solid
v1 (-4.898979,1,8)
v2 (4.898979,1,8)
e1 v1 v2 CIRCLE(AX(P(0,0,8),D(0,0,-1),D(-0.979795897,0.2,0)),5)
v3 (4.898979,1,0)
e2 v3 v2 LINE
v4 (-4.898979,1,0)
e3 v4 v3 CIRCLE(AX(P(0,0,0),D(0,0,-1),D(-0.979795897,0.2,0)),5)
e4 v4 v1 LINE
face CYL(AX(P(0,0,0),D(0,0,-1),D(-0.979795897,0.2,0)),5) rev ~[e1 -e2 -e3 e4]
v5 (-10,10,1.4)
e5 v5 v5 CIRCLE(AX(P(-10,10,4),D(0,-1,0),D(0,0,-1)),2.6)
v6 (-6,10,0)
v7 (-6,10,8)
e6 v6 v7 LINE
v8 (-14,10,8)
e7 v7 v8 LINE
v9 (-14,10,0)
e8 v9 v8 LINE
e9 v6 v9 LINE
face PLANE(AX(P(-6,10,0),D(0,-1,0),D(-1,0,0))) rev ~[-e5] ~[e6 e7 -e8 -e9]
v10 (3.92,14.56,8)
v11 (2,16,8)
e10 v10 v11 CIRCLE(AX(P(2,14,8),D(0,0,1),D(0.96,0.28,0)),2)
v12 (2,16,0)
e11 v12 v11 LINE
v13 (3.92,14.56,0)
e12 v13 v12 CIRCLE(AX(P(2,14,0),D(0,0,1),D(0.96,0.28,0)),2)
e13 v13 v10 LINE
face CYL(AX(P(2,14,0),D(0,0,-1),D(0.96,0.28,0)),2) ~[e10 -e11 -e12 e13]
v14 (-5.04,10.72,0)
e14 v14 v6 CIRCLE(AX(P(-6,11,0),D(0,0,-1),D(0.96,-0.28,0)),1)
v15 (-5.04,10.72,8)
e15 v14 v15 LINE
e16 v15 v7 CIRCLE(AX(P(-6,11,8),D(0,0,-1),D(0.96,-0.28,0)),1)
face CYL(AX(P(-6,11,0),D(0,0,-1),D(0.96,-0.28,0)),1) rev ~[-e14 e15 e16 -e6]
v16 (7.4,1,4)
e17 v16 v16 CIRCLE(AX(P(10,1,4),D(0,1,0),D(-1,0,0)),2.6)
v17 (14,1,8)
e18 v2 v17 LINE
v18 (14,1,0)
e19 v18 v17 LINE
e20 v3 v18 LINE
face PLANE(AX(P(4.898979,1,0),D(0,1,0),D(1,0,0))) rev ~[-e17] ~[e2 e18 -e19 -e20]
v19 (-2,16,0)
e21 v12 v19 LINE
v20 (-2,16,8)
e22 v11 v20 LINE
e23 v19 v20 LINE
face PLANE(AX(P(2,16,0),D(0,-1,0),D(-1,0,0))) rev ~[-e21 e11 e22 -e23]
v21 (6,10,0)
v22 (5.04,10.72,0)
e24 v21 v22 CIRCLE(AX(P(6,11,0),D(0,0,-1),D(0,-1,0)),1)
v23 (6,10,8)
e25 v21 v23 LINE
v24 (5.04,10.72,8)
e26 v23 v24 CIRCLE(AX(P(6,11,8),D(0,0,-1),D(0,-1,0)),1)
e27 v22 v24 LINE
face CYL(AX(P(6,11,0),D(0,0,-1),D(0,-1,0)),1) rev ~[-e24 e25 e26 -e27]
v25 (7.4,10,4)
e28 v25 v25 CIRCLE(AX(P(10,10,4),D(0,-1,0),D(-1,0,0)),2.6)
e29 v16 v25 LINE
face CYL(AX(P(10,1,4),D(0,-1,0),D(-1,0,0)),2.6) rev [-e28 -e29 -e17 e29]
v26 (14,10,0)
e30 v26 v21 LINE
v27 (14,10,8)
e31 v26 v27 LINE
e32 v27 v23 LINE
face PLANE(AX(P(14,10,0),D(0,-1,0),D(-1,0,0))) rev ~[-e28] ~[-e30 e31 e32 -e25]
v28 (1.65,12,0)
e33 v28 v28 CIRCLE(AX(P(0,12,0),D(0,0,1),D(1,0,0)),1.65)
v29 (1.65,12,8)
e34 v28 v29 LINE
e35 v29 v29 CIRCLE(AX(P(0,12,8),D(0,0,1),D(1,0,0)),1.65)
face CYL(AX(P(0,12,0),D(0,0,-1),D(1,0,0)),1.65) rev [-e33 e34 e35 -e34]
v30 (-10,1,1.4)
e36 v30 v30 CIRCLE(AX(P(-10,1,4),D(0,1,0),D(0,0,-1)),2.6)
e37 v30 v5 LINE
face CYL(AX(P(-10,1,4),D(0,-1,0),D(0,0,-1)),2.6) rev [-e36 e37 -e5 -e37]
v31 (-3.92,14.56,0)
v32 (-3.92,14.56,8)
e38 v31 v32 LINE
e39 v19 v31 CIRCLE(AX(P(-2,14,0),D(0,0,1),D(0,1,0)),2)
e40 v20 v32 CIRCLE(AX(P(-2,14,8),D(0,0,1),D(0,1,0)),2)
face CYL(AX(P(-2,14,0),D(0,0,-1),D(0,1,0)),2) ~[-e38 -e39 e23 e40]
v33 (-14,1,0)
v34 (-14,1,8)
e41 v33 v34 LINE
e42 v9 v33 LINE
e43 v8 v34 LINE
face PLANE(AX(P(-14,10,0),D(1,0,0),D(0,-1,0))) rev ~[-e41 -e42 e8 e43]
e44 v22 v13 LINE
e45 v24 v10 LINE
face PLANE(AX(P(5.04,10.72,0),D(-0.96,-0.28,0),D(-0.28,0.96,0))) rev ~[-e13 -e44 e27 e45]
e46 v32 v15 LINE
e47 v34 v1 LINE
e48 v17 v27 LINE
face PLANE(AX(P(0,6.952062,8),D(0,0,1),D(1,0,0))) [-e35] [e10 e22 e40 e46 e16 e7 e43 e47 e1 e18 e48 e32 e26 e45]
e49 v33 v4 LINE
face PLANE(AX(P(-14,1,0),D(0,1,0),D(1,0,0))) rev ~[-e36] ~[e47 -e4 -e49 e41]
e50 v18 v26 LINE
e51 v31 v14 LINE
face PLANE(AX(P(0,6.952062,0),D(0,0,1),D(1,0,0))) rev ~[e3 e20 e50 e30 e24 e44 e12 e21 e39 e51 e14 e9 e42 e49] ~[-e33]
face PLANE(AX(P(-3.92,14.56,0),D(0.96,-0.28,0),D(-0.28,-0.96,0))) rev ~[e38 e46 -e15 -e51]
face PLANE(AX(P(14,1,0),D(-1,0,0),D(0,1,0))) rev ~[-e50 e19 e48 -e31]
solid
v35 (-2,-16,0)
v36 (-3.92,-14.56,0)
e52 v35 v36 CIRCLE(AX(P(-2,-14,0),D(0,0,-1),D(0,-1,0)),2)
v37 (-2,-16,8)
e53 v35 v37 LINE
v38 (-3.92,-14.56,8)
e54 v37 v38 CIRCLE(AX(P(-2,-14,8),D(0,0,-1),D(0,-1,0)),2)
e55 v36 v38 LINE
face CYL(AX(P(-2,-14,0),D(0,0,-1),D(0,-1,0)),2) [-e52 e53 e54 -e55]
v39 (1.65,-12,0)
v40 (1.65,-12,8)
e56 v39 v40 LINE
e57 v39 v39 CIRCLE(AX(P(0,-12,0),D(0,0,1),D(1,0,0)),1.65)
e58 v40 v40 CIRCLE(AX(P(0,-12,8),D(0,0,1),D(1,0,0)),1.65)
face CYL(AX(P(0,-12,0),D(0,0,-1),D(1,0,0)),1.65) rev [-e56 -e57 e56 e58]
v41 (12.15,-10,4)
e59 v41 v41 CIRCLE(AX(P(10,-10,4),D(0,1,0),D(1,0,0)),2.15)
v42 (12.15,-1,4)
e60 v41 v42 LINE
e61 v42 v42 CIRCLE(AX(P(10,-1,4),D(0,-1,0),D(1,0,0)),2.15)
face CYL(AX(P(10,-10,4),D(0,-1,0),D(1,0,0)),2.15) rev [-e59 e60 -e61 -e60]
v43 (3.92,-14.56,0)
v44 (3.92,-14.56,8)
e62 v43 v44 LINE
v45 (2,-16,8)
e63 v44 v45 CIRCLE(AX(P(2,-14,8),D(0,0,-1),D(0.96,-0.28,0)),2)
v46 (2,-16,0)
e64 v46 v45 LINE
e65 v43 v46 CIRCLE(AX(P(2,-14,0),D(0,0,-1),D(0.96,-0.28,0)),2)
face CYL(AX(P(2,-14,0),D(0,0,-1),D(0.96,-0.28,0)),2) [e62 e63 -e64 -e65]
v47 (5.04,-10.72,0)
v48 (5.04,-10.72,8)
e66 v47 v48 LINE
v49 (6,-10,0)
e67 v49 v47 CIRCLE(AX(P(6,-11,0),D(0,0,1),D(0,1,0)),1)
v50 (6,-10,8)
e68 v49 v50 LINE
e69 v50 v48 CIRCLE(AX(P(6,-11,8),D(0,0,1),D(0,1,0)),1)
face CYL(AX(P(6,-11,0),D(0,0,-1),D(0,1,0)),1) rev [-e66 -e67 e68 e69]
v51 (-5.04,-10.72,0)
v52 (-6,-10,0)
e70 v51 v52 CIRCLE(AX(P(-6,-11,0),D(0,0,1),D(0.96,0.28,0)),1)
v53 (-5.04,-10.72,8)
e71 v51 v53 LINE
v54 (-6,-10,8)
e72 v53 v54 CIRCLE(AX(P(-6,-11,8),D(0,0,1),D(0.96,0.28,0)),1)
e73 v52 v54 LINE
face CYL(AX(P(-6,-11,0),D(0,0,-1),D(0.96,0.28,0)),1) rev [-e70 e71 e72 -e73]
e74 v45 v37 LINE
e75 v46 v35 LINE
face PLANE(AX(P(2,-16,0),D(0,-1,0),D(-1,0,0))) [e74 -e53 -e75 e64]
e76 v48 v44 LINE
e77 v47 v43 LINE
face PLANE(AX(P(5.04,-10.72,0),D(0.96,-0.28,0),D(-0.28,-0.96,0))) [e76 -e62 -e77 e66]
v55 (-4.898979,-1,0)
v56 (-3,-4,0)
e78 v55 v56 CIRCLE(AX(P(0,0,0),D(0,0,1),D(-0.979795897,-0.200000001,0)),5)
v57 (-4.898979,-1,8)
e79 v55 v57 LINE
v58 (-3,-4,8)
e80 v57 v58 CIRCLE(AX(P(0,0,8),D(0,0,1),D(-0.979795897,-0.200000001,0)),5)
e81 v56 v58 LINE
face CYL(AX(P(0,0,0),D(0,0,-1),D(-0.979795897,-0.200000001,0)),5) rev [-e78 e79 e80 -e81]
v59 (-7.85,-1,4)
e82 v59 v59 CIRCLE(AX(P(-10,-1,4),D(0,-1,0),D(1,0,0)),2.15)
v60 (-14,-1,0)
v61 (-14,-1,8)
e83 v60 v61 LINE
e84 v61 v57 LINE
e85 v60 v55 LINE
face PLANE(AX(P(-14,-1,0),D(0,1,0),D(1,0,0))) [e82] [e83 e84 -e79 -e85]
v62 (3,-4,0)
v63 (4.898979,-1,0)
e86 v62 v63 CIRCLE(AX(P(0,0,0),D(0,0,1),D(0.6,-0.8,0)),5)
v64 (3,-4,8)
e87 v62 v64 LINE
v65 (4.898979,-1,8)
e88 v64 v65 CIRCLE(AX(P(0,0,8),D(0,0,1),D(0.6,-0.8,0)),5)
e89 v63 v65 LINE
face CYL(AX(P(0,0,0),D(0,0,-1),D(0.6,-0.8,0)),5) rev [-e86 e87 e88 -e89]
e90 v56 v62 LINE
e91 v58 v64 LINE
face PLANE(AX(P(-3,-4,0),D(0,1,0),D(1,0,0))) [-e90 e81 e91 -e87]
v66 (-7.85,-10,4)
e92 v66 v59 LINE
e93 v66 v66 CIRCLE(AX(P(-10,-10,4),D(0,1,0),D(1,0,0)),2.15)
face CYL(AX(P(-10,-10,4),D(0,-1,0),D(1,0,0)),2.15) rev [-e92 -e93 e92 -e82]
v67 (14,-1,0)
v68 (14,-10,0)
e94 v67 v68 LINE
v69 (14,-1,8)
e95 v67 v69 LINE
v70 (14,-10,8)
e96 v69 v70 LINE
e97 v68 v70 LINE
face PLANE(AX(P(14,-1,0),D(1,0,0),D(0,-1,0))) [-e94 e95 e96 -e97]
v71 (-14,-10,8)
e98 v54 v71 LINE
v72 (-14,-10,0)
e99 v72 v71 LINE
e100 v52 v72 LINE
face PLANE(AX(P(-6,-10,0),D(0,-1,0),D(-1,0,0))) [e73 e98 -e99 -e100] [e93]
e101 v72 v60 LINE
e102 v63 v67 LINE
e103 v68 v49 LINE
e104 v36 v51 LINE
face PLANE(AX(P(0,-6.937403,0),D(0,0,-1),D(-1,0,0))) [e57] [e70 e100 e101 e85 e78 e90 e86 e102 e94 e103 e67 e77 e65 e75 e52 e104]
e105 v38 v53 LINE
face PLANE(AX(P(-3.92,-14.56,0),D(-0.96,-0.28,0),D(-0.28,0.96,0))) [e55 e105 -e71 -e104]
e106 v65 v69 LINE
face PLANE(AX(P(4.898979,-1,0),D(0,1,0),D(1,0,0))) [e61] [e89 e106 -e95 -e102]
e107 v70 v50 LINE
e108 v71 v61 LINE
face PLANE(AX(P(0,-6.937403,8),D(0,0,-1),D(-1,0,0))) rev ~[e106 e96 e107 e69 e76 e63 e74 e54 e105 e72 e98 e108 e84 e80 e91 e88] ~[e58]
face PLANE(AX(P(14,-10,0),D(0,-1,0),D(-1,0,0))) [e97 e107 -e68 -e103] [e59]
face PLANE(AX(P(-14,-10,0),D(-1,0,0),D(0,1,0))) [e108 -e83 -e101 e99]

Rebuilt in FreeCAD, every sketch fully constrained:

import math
import FreeCAD as App
import Part
import Sketcher

doc = App.newDocument("Part")
body = doc.addObject("PartDesign::Body", "Body")

sketch1 = doc.addObject("Sketcher::SketchObject", "Sketch")
body.addObject(sketch1)
sketch1.AttachmentSupport = (doc.XY_Plane, [""])
sketch1.MapMode = "FlatFace"
sketch1.addGeometry([
    Part.LineSegment(App.Vector(3, -4, 0), App.Vector(-3, -4, 0)),
    Part.ArcOfCircle(Part.Circle(App.Vector(0, 0, 0), App.Vector(0, 0, 1), 5), math.radians(-168), math.radians(-127)),
    Part.LineSegment(App.Vector(-4.9, -1, 0), App.Vector(-14, -1, 0)),
    Part.LineSegment(App.Vector(-14, -1, 0), App.Vector(-14, -10, 0)),
    Part.LineSegment(App.Vector(-14, -10, 0), App.Vector(-6, -10, 0)),
    Part.ArcOfCircle(Part.Circle(App.Vector(-6, -11, 0), App.Vector(0, 0, 1), 1), math.radians(16), math.radians(90)),
    Part.LineSegment(App.Vector(-5, -10.7, 0), App.Vector(-3.9, -14.6, 0)),
    Part.ArcOfCircle(Part.Circle(App.Vector(-2, -14, 0), App.Vector(0, 0, 1), 2), math.radians(-164), math.radians(-90)),
    Part.LineSegment(App.Vector(-2, -16, 0), App.Vector(2, -16, 0)),
    Part.ArcOfCircle(Part.Circle(App.Vector(2, -14, 0), App.Vector(0, 0, 1), 2), math.radians(-90), math.radians(-16)),
    Part.LineSegment(App.Vector(3.9, -14.6, 0), App.Vector(5, -10.7, 0)),
    Part.ArcOfCircle(Part.Circle(App.Vector(6, -11, 0), App.Vector(0, 0, 1), 1), math.radians(90), math.radians(164)),
    Part.LineSegment(App.Vector(6, -10, 0), App.Vector(14, -10, 0)),
    Part.LineSegment(App.Vector(14, -10, 0), App.Vector(14, -1, 0)),
    Part.LineSegment(App.Vector(14, -1, 0), App.Vector(4.9, -1, 0)),
    Part.ArcOfCircle(Part.Circle(App.Vector(0, 0, 0), App.Vector(0, 0, 1), 5), math.radians(-53), math.radians(-12)),
    Part.Circle(App.Vector(0, -12, 0), App.Vector(0, 0, 1), 1.6),
], False)
sketch1.addConstraint([
    Sketcher.Constraint("Coincident", 0, 2, 1, 2),
    Sketcher.Constraint("Coincident", 1, 1, 2, 1),
    Sketcher.Constraint("Coincident", 2, 2, 3, 1),
    Sketcher.Constraint("Coincident", 3, 2, 4, 1),
    Sketcher.Constraint("Tangent", 4, 2, 5, 2),
    Sketcher.Constraint("Tangent", 5, 1, 6, 1),
    Sketcher.Constraint("Tangent", 6, 2, 7, 1),
    Sketcher.Constraint("Tangent", 7, 2, 8, 1),
    Sketcher.Constraint("Tangent", 8, 2, 9, 1),
    Sketcher.Constraint("Tangent", 9, 2, 10, 1),
    Sketcher.Constraint("Tangent", 10, 2, 11, 2),
    Sketcher.Constraint("Tangent", 11, 1, 12, 1),
    Sketcher.Constraint("Coincident", 12, 2, 13, 1),
    Sketcher.Constraint("Coincident", 13, 2, 14, 1),
    Sketcher.Constraint("Coincident", 14, 2, 15, 2),
    Sketcher.Constraint("Coincident", 15, 1, 0, 1),
    Sketcher.Constraint("Horizontal", 0),
    Sketcher.Constraint("Horizontal", 2),
    Sketcher.Constraint("Vertical", 3),
    Sketcher.Constraint("Horizontal", 4),
    Sketcher.Constraint("Horizontal", 8),
    Sketcher.Constraint("Horizontal", 12),
    Sketcher.Constraint("Vertical", 13),
    Sketcher.Constraint("Horizontal", 14),
    Sketcher.Constraint("Coincident", 1, 3, -1, 1),
    Sketcher.Constraint("Coincident", 15, 3, -1, 1),
    Sketcher.Constraint("Equal", 7, 9),
    Sketcher.Constraint("Equal", 5, 11),
    Sketcher.Constraint("Equal", 1, 15),
    Sketcher.Constraint("Symmetric", 5, 3, 11, 3, -2),
    Sketcher.Constraint("Symmetric", 2, 2, 13, 2, -2),
    Sketcher.Constraint("PointOnObject", 16, 3, -2),
    Sketcher.Constraint("Horizontal", 6, 2, 9, 2),
    Sketcher.Constraint("Radius", 1, 5.0),
    Sketcher.Constraint("Radius", 5, 1.0),
    Sketcher.Constraint("Radius", 7, 2.0),
    Sketcher.Constraint("Diameter", 16, 3.3),
    Sketcher.Constraint("DistanceX", 0, 2, 0, 1, 6.0),
    Sketcher.Constraint("DistanceX", 4, 1, 4, 2, 8.0),
    Sketcher.Constraint("DistanceX", 8, 1, 8, 2, 4.0),
    Sketcher.Constraint("DistanceY", 3, 2, 3, 1, 9.0),
    Sketcher.Constraint("Distance", 6, 4.0),
    Sketcher.Constraint("DistanceX", 5, 3, -1, 1, 6.0),
    Sketcher.Constraint("DistanceY", 5, 3, -1, 1, 11.0),
    Sketcher.Constraint("DistanceY", 16, 3, -1, 1, 12.0),
])
pad1 = doc.addObject("PartDesign::Pad", "Pad")
body.addObject(pad1)
pad1.Profile = sketch1
pad1.Length = 8

sketch2 = doc.addObject("Sketcher::SketchObject", "Sketch001")
body.addObject(sketch2)
sketch2.AttachmentSupport = (doc.XZ_Plane, [""])
sketch2.MapMode = "FlatFace"
sketch2.AttachmentOffset = App.Placement(App.Vector(0, 0, 10), App.Rotation())
sketch2.addGeometry([
    Part.Circle(App.Vector(10, 4, 0), App.Vector(0, 0, 1), 2.1),
    Part.Circle(App.Vector(-10, 4, 0), App.Vector(0, 0, 1), 2.1),
], False)
sketch2.addConstraint([
    Sketcher.Constraint("Equal", 0, 1),
    Sketcher.Constraint("Symmetric", 0, 3, 1, 3, -2),
    Sketcher.Constraint("Diameter", 0, 4.3),
    Sketcher.Constraint("DistanceX", -1, 1, 0, 3, 10.0),
    Sketcher.Constraint("DistanceY", -1, 1, 0, 3, 4.0),
])
pocket1 = doc.addObject("PartDesign::Pocket", "Pocket")
body.addObject(pocket1)
pocket1.Profile = sketch2
pocket1.Type = "ThroughAll"
body2 = doc.addObject("PartDesign::Body", "Body001")

sketch3 = doc.addObject("Sketcher::SketchObject", "Sketch002")
body2.addObject(sketch3)
sketch3.AttachmentSupport = (doc.getObject("XY_Plane001"), [""])
sketch3.MapMode = "FlatFace"
sketch3.addGeometry([
    Part.LineSegment(App.Vector(-3.9, 14.6, 0), App.Vector(-5, 10.7, 0)),
    Part.ArcOfCircle(Part.Circle(App.Vector(-6, 11, 0), App.Vector(0, 0, 1), 1), math.radians(-90), math.radians(-16)),
    Part.LineSegment(App.Vector(-6, 10, 0), App.Vector(-14, 10, 0)),
    Part.LineSegment(App.Vector(-14, 10, 0), App.Vector(-14, 1, 0)),
    Part.LineSegment(App.Vector(-14, 1, 0), App.Vector(-4.9, 1, 0)),
    Part.ArcOfCircle(Part.Circle(App.Vector(0, 0, 0), App.Vector(0, 0, 1), 5), math.radians(12), math.radians(168)),
    Part.LineSegment(App.Vector(4.9, 1, 0), App.Vector(14, 1, 0)),
    Part.LineSegment(App.Vector(14, 1, 0), App.Vector(14, 10, 0)),
    Part.LineSegment(App.Vector(14, 10, 0), App.Vector(6, 10, 0)),
    Part.ArcOfCircle(Part.Circle(App.Vector(6, 11, 0), App.Vector(0, 0, 1), 1), math.radians(-164), math.radians(-90)),
    Part.LineSegment(App.Vector(5, 10.7, 0), App.Vector(3.9, 14.6, 0)),
    Part.ArcOfCircle(Part.Circle(App.Vector(2, 14, 0), App.Vector(0, 0, 1), 2), math.radians(16), math.radians(90)),
    Part.LineSegment(App.Vector(2, 16, 0), App.Vector(-2, 16, 0)),
    Part.ArcOfCircle(Part.Circle(App.Vector(-2, 14, 0), App.Vector(0, 0, 1), 2), math.radians(90), math.radians(164)),
    Part.Circle(App.Vector(0, 12, 0), App.Vector(0, 0, 1), 1.6),
], False)
sketch3.addConstraint([
    Sketcher.Constraint("Tangent", 0, 2, 1, 2),
    Sketcher.Constraint("Tangent", 1, 1, 2, 1),
    Sketcher.Constraint("Coincident", 2, 2, 3, 1),
    Sketcher.Constraint("Coincident", 3, 2, 4, 1),
    Sketcher.Constraint("Coincident", 4, 2, 5, 2),
    Sketcher.Constraint("Coincident", 5, 1, 6, 1),
    Sketcher.Constraint("Coincident", 6, 2, 7, 1),
    Sketcher.Constraint("Coincident", 7, 2, 8, 1),
    Sketcher.Constraint("Tangent", 8, 2, 9, 2),
    Sketcher.Constraint("Tangent", 9, 1, 10, 1),
    Sketcher.Constraint("Tangent", 10, 2, 11, 1),
    Sketcher.Constraint("Tangent", 11, 2, 12, 1),
    Sketcher.Constraint("Tangent", 12, 2, 13, 1),
    Sketcher.Constraint("Tangent", 13, 2, 0, 1),
    Sketcher.Constraint("Horizontal", 2),
    Sketcher.Constraint("Vertical", 3),
    Sketcher.Constraint("Horizontal", 4),
    Sketcher.Constraint("Horizontal", 6),
    Sketcher.Constraint("Vertical", 7),
    Sketcher.Constraint("Horizontal", 8),
    Sketcher.Constraint("Horizontal", 12),
    Sketcher.Constraint("Coincident", 5, 3, -1, 1),
    Sketcher.Constraint("Equal", 1, 9),
    Sketcher.Constraint("Equal", 11, 13),
    Sketcher.Constraint("Symmetric", 1, 3, 9, 3, -2),
    Sketcher.Constraint("Symmetric", 3, 2, 6, 2, -2),
    Sketcher.Constraint("PointOnObject", 14, 3, -2),
    Sketcher.Constraint("Horizontal", 0, 2, 9, 1),
    Sketcher.Constraint("Radius", 1, 1.0),
    Sketcher.Constraint("Radius", 5, 5.0),
    Sketcher.Constraint("Radius", 11, 2.0),
    Sketcher.Constraint("Diameter", 14, 3.3),
    Sketcher.Constraint("DistanceX", 2, 2, 2, 1, 8.0),
    Sketcher.Constraint("DistanceX", 12, 2, 12, 1, 4.0),
    Sketcher.Constraint("DistanceY", 3, 2, 3, 1, 9.0),
    Sketcher.Constraint("Distance", 0, 4.0),
    Sketcher.Constraint("DistanceX", 1, 3, -1, 1, 6.0),
    Sketcher.Constraint("DistanceY", -1, 1, 1, 3, 11.0),
    Sketcher.Constraint("DistanceY", -1, 1, 14, 3, 12.0),
])
pad2 = doc.addObject("PartDesign::Pad", "Pad001")
body2.addObject(pad2)
pad2.Profile = sketch3
pad2.Length = 8

sketch4 = doc.addObject("Sketcher::SketchObject", "Sketch003")
body2.addObject(sketch4)
sketch4.AttachmentSupport = (doc.getObject("XZ_Plane001"), [""])
sketch4.MapMode = "FlatFace"
sketch4.AttachmentOffset = App.Placement(App.Vector(0, 0, -10), App.Rotation())
sketch4.addGeometry([
    Part.Circle(App.Vector(10, 4, 0), App.Vector(0, 0, 1), 2.6),
    Part.Circle(App.Vector(-10, 4, 0), App.Vector(0, 0, 1), 2.6),
], False)
sketch4.addConstraint([
    Sketcher.Constraint("Equal", 0, 1),
    Sketcher.Constraint("Symmetric", 0, 3, 1, 3, -2),
    Sketcher.Constraint("Diameter", 0, 5.2),
    Sketcher.Constraint("DistanceX", -1, 1, 0, 3, 10.0),
    Sketcher.Constraint("DistanceY", -1, 1, 0, 3, 4.0),
])
pocket2 = doc.addObject("PartDesign::Pocket", "Pocket001")
body2.addObject(pocket2)
pocket2.Profile = sketch4
pocket2.Type = "ThroughAll"
pocket2.Midplane = True

doc.recompute()
